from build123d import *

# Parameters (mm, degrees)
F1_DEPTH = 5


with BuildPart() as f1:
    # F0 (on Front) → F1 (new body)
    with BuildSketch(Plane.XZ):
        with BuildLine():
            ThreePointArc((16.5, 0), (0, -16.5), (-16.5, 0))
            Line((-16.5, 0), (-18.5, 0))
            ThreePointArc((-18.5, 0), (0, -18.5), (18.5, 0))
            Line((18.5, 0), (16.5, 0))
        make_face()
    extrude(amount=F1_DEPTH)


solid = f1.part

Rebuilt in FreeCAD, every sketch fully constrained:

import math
import FreeCAD as App
import Part
import Sketcher
Q = App.Units.Quantity

doc = App.newDocument("Part")
body = doc.addObject("PartDesign::Body", "Body")

sketch1 = body.newObject("Sketcher::SketchObject", "Sketch")
sketch1.AttachmentSupport = (doc.getObject("XZ_Plane"), [""])
sketch1.MapMode = "FlatFace"
sketch1.addGeometry([
    Part.ArcOfCircle(Part.Circle(App.Vector(0, 0, 0), App.Vector(0, 0, 1), 16.5), math.radians(180), math.radians(360)),
    Part.LineSegment(App.Vector(-16.5, 0, 0), App.Vector(-18.5, 0, 0)),
    Part.ArcOfCircle(Part.Circle(App.Vector(0, 0, 0), App.Vector(0, 0, 1), 18.5), math.radians(180), math.radians(360)),
    Part.LineSegment(App.Vector(18.5, 0, 0), App.Vector(16.5, 0, 0)),
], False)
sketch1.addConstraint([
    Sketcher.Constraint("Coincident", 0, 1, 1, 1),
    Sketcher.Constraint("Coincident", 1, 2, 2, 1),
    Sketcher.Constraint("Coincident", 2, 2, 3, 1),
    Sketcher.Constraint("Coincident", 3, 2, 0, 2),
    Sketcher.Constraint("Horizontal", 1),
    Sketcher.Constraint("Horizontal", 3),
    Sketcher.Constraint("Coincident", 0, 3, -1, 1),
    Sketcher.Constraint("Coincident", 2, 3, -1, 1),
    Sketcher.Constraint("PointOnObject", 0, 1, -1),
    Sketcher.Constraint("PointOnObject", 2, 2, -1),
    Sketcher.Constraint("Radius", 0, Q("16.5 mm")),
    Sketcher.Constraint("Radius", 2, Q("18.5 mm")),
])
pad1 = body.newObject("PartDesign::Pad", "Pad")
pad1.Profile = sketch1
pad1.Length = 5

doc.recompute()
